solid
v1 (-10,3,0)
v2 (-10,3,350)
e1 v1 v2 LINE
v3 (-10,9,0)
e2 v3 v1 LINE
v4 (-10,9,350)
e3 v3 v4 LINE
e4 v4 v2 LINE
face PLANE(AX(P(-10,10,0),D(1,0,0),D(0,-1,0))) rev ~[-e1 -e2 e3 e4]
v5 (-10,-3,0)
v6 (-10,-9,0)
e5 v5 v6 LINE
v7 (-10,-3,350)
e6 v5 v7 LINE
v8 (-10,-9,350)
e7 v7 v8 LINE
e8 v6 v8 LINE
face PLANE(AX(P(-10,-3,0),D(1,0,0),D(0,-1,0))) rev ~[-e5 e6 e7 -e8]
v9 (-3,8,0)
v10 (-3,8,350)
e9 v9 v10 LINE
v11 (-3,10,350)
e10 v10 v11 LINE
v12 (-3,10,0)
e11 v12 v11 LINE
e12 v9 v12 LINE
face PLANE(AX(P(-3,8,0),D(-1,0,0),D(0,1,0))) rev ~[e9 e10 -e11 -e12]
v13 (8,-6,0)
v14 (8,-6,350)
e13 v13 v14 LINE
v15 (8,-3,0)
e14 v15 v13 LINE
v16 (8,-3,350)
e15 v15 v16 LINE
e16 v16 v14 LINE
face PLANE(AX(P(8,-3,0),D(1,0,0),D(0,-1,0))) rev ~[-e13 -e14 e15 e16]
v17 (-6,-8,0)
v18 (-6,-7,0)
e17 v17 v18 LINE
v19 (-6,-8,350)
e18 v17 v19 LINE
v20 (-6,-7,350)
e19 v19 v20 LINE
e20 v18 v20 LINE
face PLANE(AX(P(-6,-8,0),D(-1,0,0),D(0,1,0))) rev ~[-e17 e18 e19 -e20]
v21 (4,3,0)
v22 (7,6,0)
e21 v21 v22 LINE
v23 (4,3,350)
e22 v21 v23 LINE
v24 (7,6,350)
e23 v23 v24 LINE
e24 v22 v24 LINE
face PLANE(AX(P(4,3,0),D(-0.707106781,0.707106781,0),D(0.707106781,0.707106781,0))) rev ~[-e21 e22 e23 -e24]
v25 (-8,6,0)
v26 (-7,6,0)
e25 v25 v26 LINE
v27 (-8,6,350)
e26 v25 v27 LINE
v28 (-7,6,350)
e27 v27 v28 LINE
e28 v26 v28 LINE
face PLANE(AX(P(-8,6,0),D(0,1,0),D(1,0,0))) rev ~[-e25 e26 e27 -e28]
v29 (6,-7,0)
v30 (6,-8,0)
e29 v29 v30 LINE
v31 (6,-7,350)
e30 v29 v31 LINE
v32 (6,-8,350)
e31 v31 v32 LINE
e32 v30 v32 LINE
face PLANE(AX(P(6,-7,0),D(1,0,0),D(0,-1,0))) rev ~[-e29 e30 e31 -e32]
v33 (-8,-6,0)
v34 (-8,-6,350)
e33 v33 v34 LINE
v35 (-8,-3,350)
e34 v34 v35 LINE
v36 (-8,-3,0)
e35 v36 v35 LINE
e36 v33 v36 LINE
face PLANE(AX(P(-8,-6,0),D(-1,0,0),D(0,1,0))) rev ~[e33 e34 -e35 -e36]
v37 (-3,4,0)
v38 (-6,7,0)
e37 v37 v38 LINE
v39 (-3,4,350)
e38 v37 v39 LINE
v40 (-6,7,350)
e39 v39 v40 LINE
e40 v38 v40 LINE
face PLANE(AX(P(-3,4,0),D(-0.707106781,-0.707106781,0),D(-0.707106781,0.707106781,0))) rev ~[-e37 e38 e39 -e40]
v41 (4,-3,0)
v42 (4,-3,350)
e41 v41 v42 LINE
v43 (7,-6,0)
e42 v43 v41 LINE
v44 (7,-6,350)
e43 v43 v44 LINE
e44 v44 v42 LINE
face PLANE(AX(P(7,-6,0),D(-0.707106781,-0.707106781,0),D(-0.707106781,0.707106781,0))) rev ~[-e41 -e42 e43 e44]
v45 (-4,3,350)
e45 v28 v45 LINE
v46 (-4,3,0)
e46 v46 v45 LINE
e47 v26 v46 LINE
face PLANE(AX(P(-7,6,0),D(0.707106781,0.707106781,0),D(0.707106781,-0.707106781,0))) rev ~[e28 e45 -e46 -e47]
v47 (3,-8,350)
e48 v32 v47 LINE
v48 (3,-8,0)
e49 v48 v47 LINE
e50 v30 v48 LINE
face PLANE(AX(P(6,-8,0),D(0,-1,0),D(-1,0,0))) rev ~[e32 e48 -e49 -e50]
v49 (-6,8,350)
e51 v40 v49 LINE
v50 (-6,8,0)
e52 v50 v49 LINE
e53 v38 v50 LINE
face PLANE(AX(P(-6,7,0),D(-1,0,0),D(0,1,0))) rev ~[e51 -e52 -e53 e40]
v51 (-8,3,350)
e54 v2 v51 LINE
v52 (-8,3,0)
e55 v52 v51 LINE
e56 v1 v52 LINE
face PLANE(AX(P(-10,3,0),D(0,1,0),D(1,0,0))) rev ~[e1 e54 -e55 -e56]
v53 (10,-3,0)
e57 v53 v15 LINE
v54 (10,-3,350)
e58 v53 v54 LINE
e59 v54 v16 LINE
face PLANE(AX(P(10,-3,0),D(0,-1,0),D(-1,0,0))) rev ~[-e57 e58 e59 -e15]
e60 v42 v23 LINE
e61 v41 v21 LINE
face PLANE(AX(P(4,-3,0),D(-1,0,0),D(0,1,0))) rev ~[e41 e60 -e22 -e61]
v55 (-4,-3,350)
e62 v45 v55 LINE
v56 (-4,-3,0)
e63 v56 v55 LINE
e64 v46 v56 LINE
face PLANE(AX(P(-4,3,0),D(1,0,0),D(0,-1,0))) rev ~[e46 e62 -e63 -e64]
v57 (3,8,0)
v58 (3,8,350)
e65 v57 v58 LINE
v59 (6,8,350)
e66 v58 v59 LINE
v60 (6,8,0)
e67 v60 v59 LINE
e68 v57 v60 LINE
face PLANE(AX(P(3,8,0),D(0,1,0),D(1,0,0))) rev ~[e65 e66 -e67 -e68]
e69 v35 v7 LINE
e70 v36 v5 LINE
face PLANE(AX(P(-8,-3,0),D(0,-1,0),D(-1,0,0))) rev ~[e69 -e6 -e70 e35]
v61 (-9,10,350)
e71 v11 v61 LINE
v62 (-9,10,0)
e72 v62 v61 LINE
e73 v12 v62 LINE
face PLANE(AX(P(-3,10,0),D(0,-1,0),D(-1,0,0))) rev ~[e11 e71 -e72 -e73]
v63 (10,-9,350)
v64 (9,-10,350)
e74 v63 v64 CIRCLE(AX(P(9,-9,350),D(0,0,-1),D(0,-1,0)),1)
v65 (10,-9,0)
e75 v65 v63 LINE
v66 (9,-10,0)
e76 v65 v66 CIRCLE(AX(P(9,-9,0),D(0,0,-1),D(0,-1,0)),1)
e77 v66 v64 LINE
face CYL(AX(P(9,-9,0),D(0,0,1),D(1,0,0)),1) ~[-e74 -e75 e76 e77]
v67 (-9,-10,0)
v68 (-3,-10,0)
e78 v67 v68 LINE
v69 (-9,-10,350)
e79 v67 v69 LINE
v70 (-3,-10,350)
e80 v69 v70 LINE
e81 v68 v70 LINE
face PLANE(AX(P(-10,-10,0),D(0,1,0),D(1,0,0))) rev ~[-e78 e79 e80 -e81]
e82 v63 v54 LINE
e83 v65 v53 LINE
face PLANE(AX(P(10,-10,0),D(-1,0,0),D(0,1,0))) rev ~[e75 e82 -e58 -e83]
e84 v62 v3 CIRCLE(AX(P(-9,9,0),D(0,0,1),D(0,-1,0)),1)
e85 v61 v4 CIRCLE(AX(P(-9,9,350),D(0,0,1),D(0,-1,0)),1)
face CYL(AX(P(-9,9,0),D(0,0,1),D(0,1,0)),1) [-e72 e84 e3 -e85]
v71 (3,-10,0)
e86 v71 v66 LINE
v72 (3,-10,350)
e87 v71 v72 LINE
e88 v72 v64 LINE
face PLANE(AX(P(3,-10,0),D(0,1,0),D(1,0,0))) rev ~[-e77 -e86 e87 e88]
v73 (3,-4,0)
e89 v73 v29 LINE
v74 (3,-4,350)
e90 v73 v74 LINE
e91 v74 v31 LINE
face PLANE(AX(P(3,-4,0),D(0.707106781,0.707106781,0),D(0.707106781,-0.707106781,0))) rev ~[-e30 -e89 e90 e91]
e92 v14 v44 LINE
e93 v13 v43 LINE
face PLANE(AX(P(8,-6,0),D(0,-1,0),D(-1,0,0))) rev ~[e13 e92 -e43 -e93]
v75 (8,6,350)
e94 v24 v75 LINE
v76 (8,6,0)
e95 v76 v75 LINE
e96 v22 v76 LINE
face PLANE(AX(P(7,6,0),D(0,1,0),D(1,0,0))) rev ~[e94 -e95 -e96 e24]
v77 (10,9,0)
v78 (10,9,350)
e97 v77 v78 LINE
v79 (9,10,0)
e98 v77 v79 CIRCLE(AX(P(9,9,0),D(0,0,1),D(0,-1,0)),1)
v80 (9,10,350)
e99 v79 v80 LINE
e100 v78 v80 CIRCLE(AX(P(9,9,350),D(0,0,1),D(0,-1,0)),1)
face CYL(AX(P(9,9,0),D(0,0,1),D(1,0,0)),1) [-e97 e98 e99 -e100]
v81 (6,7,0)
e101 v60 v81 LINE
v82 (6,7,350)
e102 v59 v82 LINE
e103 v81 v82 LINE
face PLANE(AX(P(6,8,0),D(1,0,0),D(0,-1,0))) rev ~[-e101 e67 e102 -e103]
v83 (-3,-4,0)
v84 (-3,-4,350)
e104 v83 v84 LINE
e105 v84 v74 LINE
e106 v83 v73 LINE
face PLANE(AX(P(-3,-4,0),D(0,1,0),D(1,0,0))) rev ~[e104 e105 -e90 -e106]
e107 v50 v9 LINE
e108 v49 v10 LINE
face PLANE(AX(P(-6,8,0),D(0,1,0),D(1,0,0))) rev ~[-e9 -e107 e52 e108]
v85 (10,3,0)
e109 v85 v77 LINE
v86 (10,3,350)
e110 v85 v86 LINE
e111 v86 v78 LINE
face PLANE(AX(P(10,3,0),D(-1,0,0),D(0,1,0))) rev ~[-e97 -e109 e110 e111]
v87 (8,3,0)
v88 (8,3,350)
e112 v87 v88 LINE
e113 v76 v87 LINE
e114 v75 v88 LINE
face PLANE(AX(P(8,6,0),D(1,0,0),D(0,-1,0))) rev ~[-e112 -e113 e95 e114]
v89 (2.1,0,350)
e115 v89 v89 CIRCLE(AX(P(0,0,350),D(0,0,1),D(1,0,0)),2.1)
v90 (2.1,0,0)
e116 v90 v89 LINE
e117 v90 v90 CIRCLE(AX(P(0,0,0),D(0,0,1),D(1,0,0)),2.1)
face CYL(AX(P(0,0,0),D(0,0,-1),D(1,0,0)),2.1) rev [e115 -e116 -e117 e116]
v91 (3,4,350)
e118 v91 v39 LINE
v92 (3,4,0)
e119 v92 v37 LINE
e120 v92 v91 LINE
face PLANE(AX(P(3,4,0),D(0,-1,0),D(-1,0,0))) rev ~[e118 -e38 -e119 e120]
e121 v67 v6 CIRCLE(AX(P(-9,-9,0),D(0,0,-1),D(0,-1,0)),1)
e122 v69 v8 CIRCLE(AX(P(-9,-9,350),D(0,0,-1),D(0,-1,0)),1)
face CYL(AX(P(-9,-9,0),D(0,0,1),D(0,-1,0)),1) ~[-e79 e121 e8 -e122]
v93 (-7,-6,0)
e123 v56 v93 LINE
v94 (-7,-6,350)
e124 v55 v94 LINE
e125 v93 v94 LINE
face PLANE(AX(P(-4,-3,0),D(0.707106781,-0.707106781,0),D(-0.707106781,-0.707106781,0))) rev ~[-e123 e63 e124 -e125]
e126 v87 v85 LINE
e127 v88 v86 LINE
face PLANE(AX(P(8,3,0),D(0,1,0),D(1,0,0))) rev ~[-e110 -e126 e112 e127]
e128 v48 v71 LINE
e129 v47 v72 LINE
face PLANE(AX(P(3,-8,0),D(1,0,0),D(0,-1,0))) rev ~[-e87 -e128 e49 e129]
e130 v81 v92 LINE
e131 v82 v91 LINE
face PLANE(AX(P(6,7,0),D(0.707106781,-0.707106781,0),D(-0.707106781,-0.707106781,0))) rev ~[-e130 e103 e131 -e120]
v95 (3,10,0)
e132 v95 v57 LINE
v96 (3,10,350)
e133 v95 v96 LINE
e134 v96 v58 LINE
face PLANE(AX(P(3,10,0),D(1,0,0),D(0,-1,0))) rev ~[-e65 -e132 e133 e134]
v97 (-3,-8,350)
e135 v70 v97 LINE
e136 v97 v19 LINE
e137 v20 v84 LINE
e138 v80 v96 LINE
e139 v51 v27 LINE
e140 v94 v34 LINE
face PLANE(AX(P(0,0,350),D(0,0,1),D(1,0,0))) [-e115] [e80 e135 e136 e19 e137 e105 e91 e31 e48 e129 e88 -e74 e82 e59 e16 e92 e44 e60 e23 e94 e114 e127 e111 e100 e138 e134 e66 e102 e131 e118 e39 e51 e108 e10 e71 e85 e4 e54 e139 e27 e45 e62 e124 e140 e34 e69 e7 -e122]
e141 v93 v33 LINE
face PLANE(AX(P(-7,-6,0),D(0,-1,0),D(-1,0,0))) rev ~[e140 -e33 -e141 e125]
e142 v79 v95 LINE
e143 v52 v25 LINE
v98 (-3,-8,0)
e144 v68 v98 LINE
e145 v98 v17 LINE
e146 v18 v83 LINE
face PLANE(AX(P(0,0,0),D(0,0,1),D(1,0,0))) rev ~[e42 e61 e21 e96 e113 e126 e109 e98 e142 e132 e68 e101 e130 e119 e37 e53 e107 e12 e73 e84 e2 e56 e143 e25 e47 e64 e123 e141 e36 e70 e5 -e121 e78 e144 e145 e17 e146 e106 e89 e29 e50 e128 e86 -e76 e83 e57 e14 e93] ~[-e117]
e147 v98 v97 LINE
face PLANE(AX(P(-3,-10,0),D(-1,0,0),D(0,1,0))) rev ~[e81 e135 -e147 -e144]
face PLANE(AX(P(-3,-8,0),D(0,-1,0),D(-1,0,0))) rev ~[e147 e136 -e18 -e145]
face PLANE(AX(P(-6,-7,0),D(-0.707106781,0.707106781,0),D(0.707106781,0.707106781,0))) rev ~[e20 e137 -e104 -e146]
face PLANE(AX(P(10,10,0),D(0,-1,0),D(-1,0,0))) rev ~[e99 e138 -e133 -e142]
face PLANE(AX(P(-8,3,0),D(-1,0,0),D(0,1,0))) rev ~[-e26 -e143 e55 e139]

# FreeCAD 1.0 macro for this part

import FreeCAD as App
import Part
import Sketcher


def edges_at(feature, points):
    """Names of the edges that pass closest to the given points."""
    edges = feature.Shape.Edges
    near = lambda p: min(range(len(edges)), key=lambda i: edges[i].distToShape(Part.Vertex(*p))[0])
    return sorted({f"Edge{near(p) + 1}" for p in points})

doc = App.newDocument("Part")
body = doc.addObject("PartDesign::Body", "Body")

# Sketch on XY plane
sketch1 = body.newObject("Sketcher::SketchObject", "Sketch")
sketch1.AttachmentSupport = (doc.getObject("XY_Plane"), [""])
sketch1.MapMode = "FlatFace"
sketch1.addGeometry(Part.LineSegment(App.Vector(10, 3, 0), App.Vector(10, 10, 0)), False)
sketch1.addGeometry(Part.LineSegment(App.Vector(10, 10, 0), App.Vector(3, 10, 0)), False)
sketch1.addGeometry(Part.LineSegment(App.Vector(3, 10, 0), App.Vector(3, 8, 0)), False)
sketch1.addGeometry(Part.LineSegment(App.Vector(3, 8, 0), App.Vector(6, 8, 0)), False)
sketch1.addGeometry(Part.LineSegment(App.Vector(6, 8, 0), App.Vector(6, 7, 0)), False)
sketch1.addGeometry(Part.LineSegment(App.Vector(6, 7, 0), App.Vector(3, 4, 0)), False)
sketch1.addGeometry(Part.LineSegment(App.Vector(3, 4, 0), App.Vector(-3, 4, 0)), False)
sketch1.addGeometry(Part.LineSegment(App.Vector(-3, 4, 0), App.Vector(-6, 7, 0)), False)
sketch1.addGeometry(Part.LineSegment(App.Vector(-6, 7, 0), App.Vector(-6, 8, 0)), False)
sketch1.addGeometry(Part.LineSegment(App.Vector(-6, 8, 0), App.Vector(-3, 8, 0)), False)
sketch1.addGeometry(Part.LineSegment(App.Vector(-3, 8, 0), App.Vector(-3, 10, 0)), False)
sketch1.addGeometry(Part.LineSegment(App.Vector(-3, 10, 0), App.Vector(-10, 10, 0)), False)
sketch1.addGeometry(Part.LineSegment(App.Vector(-10, 10, 0), App.Vector(-10, 3, 0)), False)
sketch1.addGeometry(Part.LineSegment(App.Vector(-10, 3, 0), App.Vector(-8, 3, 0)), False)
sketch1.addGeometry(Part.LineSegment(App.Vector(-8, 3, 0), App.Vector(-8, 6, 0)), False)
sketch1.addGeometry(Part.LineSegment(App.Vector(-8, 6, 0), App.Vector(-7, 6, 0)), False)
sketch1.addGeometry(Part.LineSegment(App.Vector(-7, 6, 0), App.Vector(-4, 3, 0)), False)
sketch1.addGeometry(Part.LineSegment(App.Vector(-4, 3, 0), App.Vector(-4, -3, 0)), False)
sketch1.addGeometry(Part.LineSegment(App.Vector(-4, -3, 0), App.Vector(-7, -6, 0)), False)
sketch1.addGeometry(Part.LineSegment(App.Vector(-7, -6, 0), App.Vector(-8, -6, 0)), False)
sketch1.addGeometry(Part.LineSegment(App.Vector(-8, -6, 0), App.Vector(-8, -3, 0)), False)
sketch1.addGeometry(Part.LineSegment(App.Vector(-8, -3, 0), App.Vector(-10, -3, 0)), False)
sketch1.addGeometry(Part.LineSegment(App.Vector(-10, -3, 0), App.Vector(-10, -10, 0)), False)
sketch1.addGeometry(Part.LineSegment(App.Vector(-10, -10, 0), App.Vector(-3, -10, 0)), False)
sketch1.addGeometry(Part.LineSegment(App.Vector(-3, -10, 0), App.Vector(-3, -8, 0)), False)
sketch1.addGeometry(Part.LineSegment(App.Vector(-3, -8, 0), App.Vector(-6, -8, 0)), False)
sketch1.addGeometry(Part.LineSegment(App.Vector(-6, -8, 0), App.Vector(-6, -7, 0)), False)
sketch1.addGeometry(Part.LineSegment(App.Vector(-6, -7, 0), App.Vector(-3, -4, 0)), False)
sketch1.addGeometry(Part.LineSegment(App.Vector(-3, -4, 0), App.Vector(3, -4, 0)), False)
sketch1.addGeometry(Part.LineSegment(App.Vector(3, -4, 0), App.Vector(6, -7, 0)), False)
sketch1.addGeometry(Part.LineSegment(App.Vector(6, -7, 0), App.Vector(6, -8, 0)), False)
sketch1.addGeometry(Part.LineSegment(App.Vector(6, -8, 0), App.Vector(3, -8, 0)), False)
sketch1.addGeometry(Part.LineSegment(App.Vector(3, -8, 0), App.Vector(3, -10, 0)), False)
sketch1.addGeometry(Part.LineSegment(App.Vector(3, -10, 0), App.Vector(10, -10, 0)), False)
sketch1.addGeometry(Part.LineSegment(App.Vector(10, -10, 0), App.Vector(10, -3, 0)), False)
sketch1.addGeometry(Part.LineSegment(App.Vector(10, -3, 0), App.Vector(8, -3, 0)), False)
sketch1.addGeometry(Part.LineSegment(App.Vector(8, -3, 0), App.Vector(8, -6, 0)), False)
sketch1.addGeometry(Part.LineSegment(App.Vector(8, -6, 0), App.Vector(7, -6, 0)), False)
sketch1.addGeometry(Part.LineSegment(App.Vector(7, -6, 0), App.Vector(4, -3, 0)), False)
sketch1.addGeometry(Part.LineSegment(App.Vector(4, -3, 0), App.Vector(4, 3, 0)), False)
sketch1.addGeometry(Part.LineSegment(App.Vector(4, 3, 0), App.Vector(7, 6, 0)), False)
sketch1.addGeometry(Part.LineSegment(App.Vector(7, 6, 0), App.Vector(8, 6, 0)), False)
sketch1.addGeometry(Part.LineSegment(App.Vector(8, 6, 0), App.Vector(8, 3, 0)), False)
sketch1.addGeometry(Part.LineSegment(App.Vector(8, 3, 0), App.Vector(10, 3, 0)), False)
sketch1.addGeometry(Part.Circle(App.Vector(0, 0, 0), App.Vector(0, 0, 1), 2.1), False)
sketch1.addConstraint(Sketcher.Constraint("Coincident", 0, 2, 1, 1))
sketch1.addConstraint(Sketcher.Constraint("Coincident", 1, 2, 2, 1))
sketch1.addConstraint(Sketcher.Constraint("Coincident", 2, 2, 3, 1))
sketch1.addConstraint(Sketcher.Constraint("Coincident", 3, 2, 4, 1))
sketch1.addConstraint(Sketcher.Constraint("Coincident", 4, 2, 5, 1))
sketch1.addConstraint(Sketcher.Constraint("Coincident", 5, 2, 6, 1))
sketch1.addConstraint(Sketcher.Constraint("Coincident", 6, 2, 7, 1))
sketch1.addConstraint(Sketcher.Constraint("Coincident", 7, 2, 8, 1))
sketch1.addConstraint(Sketcher.Constraint("Coincident", 8, 2, 9, 1))
sketch1.addConstraint(Sketcher.Constraint("Coincident", 9, 2, 10, 1))
sketch1.addConstraint(Sketcher.Constraint("Coincident", 10, 2, 11, 1))
sketch1.addConstraint(Sketcher.Constraint("Coincident", 11, 2, 12, 1))
sketch1.addConstraint(Sketcher.Constraint("Coincident", 12, 2, 13, 1))
sketch1.addConstraint(Sketcher.Constraint("Coincident", 13, 2, 14, 1))
sketch1.addConstraint(Sketcher.Constraint("Coincident", 14, 2, 15, 1))
sketch1.addConstraint(Sketcher.Constraint("Coincident", 15, 2, 16, 1))
sketch1.addConstraint(Sketcher.Constraint("Coincident", 16, 2, 17, 1))
sketch1.addConstraint(Sketcher.Constraint("Coincident", 17, 2, 18, 1))
sketch1.addConstraint(Sketcher.Constraint("Coincident", 18, 2, 19, 1))
sketch1.addConstraint(Sketcher.Constraint("Coincident", 19, 2, 20, 1))
sketch1.addConstraint(Sketcher.Constraint("Coincident", 20, 2, 21, 1))
sketch1.addConstraint(Sketcher.Constraint("Coincident", 21, 2, 22, 1))
sketch1.addConstraint(Sketcher.Constraint("Coincident", 22, 2, 23, 1))
sketch1.addConstraint(Sketcher.Constraint("Coincident", 23, 2, 24, 1))
sketch1.addConstraint(Sketcher.Constraint("Coincident", 24, 2, 25, 1))
sketch1.addConstraint(Sketcher.Constraint("Coincident", 25, 2, 26, 1))
sketch1.addConstraint(Sketcher.Constraint("Coincident", 26, 2, 27, 1))
sketch1.addConstraint(Sketcher.Constraint("Coincident", 27, 2, 28, 1))
sketch1.addConstraint(Sketcher.Constraint("Coincident", 28, 2, 29, 1))
sketch1.addConstraint(Sketcher.Constraint("Coincident", 29, 2, 30, 1))
sketch1.addConstraint(Sketcher.Constraint("Coincident", 30, 2, 31, 1))
sketch1.addConstraint(Sketcher.Constraint("Coincident", 31, 2, 32, 1))
sketch1.addConstraint(Sketcher.Constraint("Coincident", 32, 2, 33, 1))
sketch1.addConstraint(Sketcher.Constraint("Coincident", 33, 2, 34, 1))
sketch1.addConstraint(Sketcher.Constraint("Coincident", 34, 2, 35, 1))
sketch1.addConstraint(Sketcher.Constraint("Coincident", 35, 2, 36, 1))
sketch1.addConstraint(Sketcher.Constraint("Coincident", 36, 2, 37, 1))
sketch1.addConstraint(Sketcher.Constraint("Coincident", 37, 2, 38, 1))
sketch1.addConstraint(Sketcher.Constraint("Coincident", 38, 2, 39, 1))
sketch1.addConstraint(Sketcher.Constraint("Coincident", 39, 2, 40, 1))
sketch1.addConstraint(Sketcher.Constraint("Coincident", 40, 2, 41, 1))
sketch1.addConstraint(Sketcher.Constraint("Coincident", 41, 2, 42, 1))
sketch1.addConstraint(Sketcher.Constraint("Coincident", 42, 2, 43, 1))
sketch1.addConstraint(Sketcher.Constraint("Coincident", 43, 2, 0, 1))
sketch1.addConstraint(Sketcher.Constraint("Vertical", 0))
sketch1.addConstraint(Sketcher.Constraint("Horizontal", 1))
sketch1.addConstraint(Sketcher.Constraint("Vertical", 2))
sketch1.addConstraint(Sketcher.Constraint("Horizontal", 3))
sketch1.addConstraint(Sketcher.Constraint("Vertical", 4))
sketch1.addConstraint(Sketcher.Constraint("Horizontal", 6))
sketch1.addConstraint(Sketcher.Constraint("Vertical", 8))
sketch1.addConstraint(Sketcher.Constraint("Horizontal", 9))
sketch1.addConstraint(Sketcher.Constraint("Vertical", 10))
sketch1.addConstraint(Sketcher.Constraint("Horizontal", 11))
sketch1.addConstraint(Sketcher.Constraint("Vertical", 12))
sketch1.addConstraint(Sketcher.Constraint("Horizontal", 13))
sketch1.addConstraint(Sketcher.Constraint("Vertical", 14))
sketch1.addConstraint(Sketcher.Constraint("Horizontal", 15))
sketch1.addConstraint(Sketcher.Constraint("Vertical", 17))
sketch1.addConstraint(Sketcher.Constraint("Horizontal", 19))
sketch1.addConstraint(Sketcher.Constraint("Vertical", 20))
sketch1.addConstraint(Sketcher.Constraint("Horizontal", 21))
sketch1.addConstraint(Sketcher.Constraint("Vertical", 22))
sketch1.addConstraint(Sketcher.Constraint("Horizontal", 23))
sketch1.addConstraint(Sketcher.Constraint("Vertical", 24))
sketch1.addConstraint(Sketcher.Constraint("Horizontal", 25))
sketch1.addConstraint(Sketcher.Constraint("Vertical", 26))
sketch1.addConstraint(Sketcher.Constraint("Horizontal", 28))
sketch1.addConstraint(Sketcher.Constraint("Vertical", 30))
sketch1.addConstraint(Sketcher.Constraint("Horizontal", 31))
sketch1.addConstraint(Sketcher.Constraint("Vertical", 32))
sketch1.addConstraint(Sketcher.Constraint("Horizontal", 33))
sketch1.addConstraint(Sketcher.Constraint("Vertical", 34))
sketch1.addConstraint(Sketcher.Constraint("Horizontal", 35))
sketch1.addConstraint(Sketcher.Constraint("Vertical", 36))
sketch1.addConstraint(Sketcher.Constraint("Horizontal", 37))
sketch1.addConstraint(Sketcher.Constraint("Vertical", 39))
sketch1.addConstraint(Sketcher.Constraint("Horizontal", 41))
sketch1.addConstraint(Sketcher.Constraint("Vertical", 42))
sketch1.addConstraint(Sketcher.Constraint("Horizontal", 43))
sketch1.addConstraint(Sketcher.Constraint("Coincident", 44, 3, -1, 1))
sketch1.addConstraint(Sketcher.Constraint("Symmetric", 0, 2, 22, 2, -1, 1))
sketch1.addConstraint(Sketcher.Constraint("Symmetric", 2, 2, 24, 2, -1, 1))
sketch1.addConstraint(Sketcher.Constraint("Symmetric", 4, 2, 26, 2, -1, 1))
sketch1.addConstraint(Sketcher.Constraint("Symmetric", 5, 2, 27, 2, -1, 1))
sketch1.addConstraint(Sketcher.Constraint("Symmetric", 7, 2, 29, 2, -1, 1))
sketch1.addConstraint(Sketcher.Constraint("Symmetric", 9, 2, 31, 2, -1, 1))
sketch1.addConstraint(Sketcher.Constraint("Symmetric", 11, 2, 33, 2, -1, 1))
sketch1.addConstraint(Sketcher.Constraint("Symmetric", 13, 2, 35, 2, -1, 1))
sketch1.addConstraint(Sketcher.Constraint("Symmetric", 15, 2, 37, 2, -1, 1))
sketch1.addConstraint(Sketcher.Constraint("Symmetric", 16, 2, 38, 2, -1, 1))
sketch1.addConstraint(Sketcher.Constraint("Symmetric", 18, 2, 40, 2, -1, 1))
sketch1.addConstraint(Sketcher.Constraint("Symmetric", 20, 2, 42, 2, -1, 1))
sketch1.addConstraint(Sketcher.Constraint("Symmetric", 4, 2, 7, 2, -2))
sketch1.addConstraint(Sketcher.Constraint("Symmetric", 2, 2, 9, 2, -2))
sketch1.addConstraint(Sketcher.Constraint("Symmetric", 0, 2, 11, 2, -2))
sketch1.addConstraint(Sketcher.Constraint("Symmetric", 20, 2, 35, 2, -2))
sketch1.addConstraint(Sketcher.Constraint("Symmetric", 18, 2, 37, 2, -2))
sketch1.addConstraint(Sketcher.Constraint("Perpendicular", 5, 7))
sketch1.addConstraint(Sketcher.Constraint("Parallel", 7, 16))
sketch1.addConstraint(Sketcher.Constraint("Perpendicular", 16, 18))
sketch1.addConstraint(Sketcher.Constraint("Perpendicular", 27, 29))
sketch1.addConstraint(Sketcher.Constraint("Perpendicular", 38, 40))
sketch1.addConstraint(Sketcher.Constraint("Horizontal", 13, 2, 16, 2))
sketch1.addConstraint(Sketcher.Constraint("Horizontal", 17, 2, 20, 2))
sketch1.addConstraint(Sketcher.Constraint("Vertical", 2, 2, 5, 2))
sketch1.addConstraint(Sketcher.Constraint("Equal", 33, 0))
sketch1.addConstraint(Sketcher.Constraint("Equal", 43, 2))
sketch1.addConstraint(Sketcher.Constraint("Equal", 41, 4))
sketch1.addConstraint(Sketcher.Constraint("Equal", 31, 14))
sketch1.addConstraint(Sketcher.Constraint("Equal", 28, 17))
sketch1.addConstraint(Sketcher.Constraint("Diameter", 44, 4.2))
sketch1.addConstraint(Sketcher.Constraint("DistanceX", 1, 2, 1, 1, 7.0))
sketch1.addConstraint(Sketcher.Constraint("DistanceX", 3, 1, 3, 2, 3.0))
sketch1.addConstraint(Sketcher.Constraint("DistanceX", 6, 2, 6, 1, 6.0))
sketch1.addConstraint(Sketcher.Constraint("DistanceX", 13, 1, 13, 2, 2.0))
sketch1.addConstraint(Sketcher.Constraint("DistanceX", 15, 1, 15, 2, 1.0))
pad1 = body.newObject("PartDesign::Pad", "Pad")
pad1.Profile = sketch1
pad1.Length = 350
doc.recompute()

fillet = body.newObject("PartDesign::Fillet", "Fillet")
fillet.Base = (pad1, edges_at(pad1, [
    (-10, 10, 175),
    (10, 10, 175),
    (10, -10, 175),
    (-10, -10, 175),
]))
fillet.Radius = 1

doc.recompute()
